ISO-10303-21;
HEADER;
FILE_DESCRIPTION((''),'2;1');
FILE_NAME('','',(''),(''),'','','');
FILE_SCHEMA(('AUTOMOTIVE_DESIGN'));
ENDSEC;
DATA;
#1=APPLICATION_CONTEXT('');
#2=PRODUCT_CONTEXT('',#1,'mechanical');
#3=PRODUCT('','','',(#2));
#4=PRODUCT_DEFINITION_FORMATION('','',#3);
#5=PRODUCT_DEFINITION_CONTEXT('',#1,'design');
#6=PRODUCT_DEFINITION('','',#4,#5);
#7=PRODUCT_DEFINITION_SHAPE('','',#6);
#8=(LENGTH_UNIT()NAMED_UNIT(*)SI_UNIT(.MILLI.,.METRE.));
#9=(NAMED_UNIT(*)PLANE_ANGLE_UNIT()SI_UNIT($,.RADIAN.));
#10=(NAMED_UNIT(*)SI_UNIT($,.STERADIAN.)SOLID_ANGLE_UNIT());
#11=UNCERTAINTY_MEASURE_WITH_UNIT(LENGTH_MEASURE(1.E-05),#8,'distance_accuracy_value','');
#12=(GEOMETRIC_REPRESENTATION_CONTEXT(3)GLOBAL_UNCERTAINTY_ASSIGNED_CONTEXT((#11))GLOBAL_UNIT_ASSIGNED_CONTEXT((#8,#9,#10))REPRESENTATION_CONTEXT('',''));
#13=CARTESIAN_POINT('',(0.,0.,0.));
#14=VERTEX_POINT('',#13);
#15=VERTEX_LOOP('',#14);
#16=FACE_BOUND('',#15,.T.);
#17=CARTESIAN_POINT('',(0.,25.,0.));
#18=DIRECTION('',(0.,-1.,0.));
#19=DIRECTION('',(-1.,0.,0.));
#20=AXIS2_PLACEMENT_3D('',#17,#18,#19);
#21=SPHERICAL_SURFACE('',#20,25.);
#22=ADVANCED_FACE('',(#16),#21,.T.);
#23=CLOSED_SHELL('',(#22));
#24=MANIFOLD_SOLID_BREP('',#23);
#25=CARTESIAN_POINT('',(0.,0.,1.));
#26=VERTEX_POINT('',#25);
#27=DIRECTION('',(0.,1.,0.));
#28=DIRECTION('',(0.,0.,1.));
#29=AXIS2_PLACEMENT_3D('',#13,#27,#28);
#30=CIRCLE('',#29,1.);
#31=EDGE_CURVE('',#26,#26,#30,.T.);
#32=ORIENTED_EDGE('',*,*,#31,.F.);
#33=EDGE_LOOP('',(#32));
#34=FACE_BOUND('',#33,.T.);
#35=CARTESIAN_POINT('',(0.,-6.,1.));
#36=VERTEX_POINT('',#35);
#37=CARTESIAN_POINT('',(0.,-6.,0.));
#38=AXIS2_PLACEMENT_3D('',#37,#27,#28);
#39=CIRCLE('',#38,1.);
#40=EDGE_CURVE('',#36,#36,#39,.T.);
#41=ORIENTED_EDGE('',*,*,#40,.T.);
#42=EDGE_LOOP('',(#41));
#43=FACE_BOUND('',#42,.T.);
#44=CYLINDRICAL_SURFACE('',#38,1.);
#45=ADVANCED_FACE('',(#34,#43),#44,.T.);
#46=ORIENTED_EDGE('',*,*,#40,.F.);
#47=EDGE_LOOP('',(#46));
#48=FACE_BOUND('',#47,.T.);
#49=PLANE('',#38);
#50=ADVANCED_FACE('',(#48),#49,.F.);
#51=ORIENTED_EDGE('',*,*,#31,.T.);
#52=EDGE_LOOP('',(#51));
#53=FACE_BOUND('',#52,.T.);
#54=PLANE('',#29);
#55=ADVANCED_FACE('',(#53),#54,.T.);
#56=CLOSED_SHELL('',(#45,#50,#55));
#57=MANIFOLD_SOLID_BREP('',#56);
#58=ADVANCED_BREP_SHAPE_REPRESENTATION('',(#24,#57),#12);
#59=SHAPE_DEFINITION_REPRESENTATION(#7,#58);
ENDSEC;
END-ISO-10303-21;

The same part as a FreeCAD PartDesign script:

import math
import FreeCAD as App
import Part
import Sketcher
Q = App.Units.Quantity

doc = App.newDocument("Part")
body = doc.addObject("PartDesign::Body", "Body")

# Sketch on XY plane
sketch1 = body.newObject("Sketcher::SketchObject", "Sketch")
sketch1.AttachmentSupport = (doc.getObject("XY_Plane"), [""])
sketch1.MapMode = "FlatFace"
sketch1.addGeometry([
    Part.LineSegment(App.Vector(0, 50, 0), App.Vector(0, 0, 0)),
    Part.ArcOfCircle(Part.Circle(App.Vector(0, 25, 0), App.Vector(0, 0, 1), 25), math.radians(-90), math.radians(90)),
], False)
sketch1.addConstraint([
    Sketcher.Constraint("Coincident", 0, 1, 1, 2),
    Sketcher.Constraint("Coincident", 1, 1, 0, 2),
    Sketcher.Constraint("Vertical", 0),
    Sketcher.Constraint("Coincident", 1, 1, -1, 1),
    Sketcher.Constraint("PointOnObject", 1, 3, -2),
    Sketcher.Constraint("Radius", 1, Q("25 mm")),
])
revolution = body.newObject("PartDesign::Revolution", "Revolution")
revolution.Profile = sketch1
revolution.ReferenceAxis = (sketch1, ["V_Axis"])
revolution.Angle = 360
body2 = doc.addObject("PartDesign::Body", "Body001")

# Sketch on XZ plane
sketch2 = body2.newObject("Sketcher::SketchObject", "Sketch001")
sketch2.AttachmentSupport = (doc.getObject("XZ_Plane001"), [""])
sketch2.MapMode = "FlatFace"
sketch2.addGeometry(Part.Circle(App.Vector(0, 0, 0), App.Vector(0, 0, 1), 1), False)
sketch2.addConstraint([
    Sketcher.Constraint("Coincident", 0, 3, -1, 1),
    Sketcher.Constraint("Diameter", 0, Q("2 mm")),
])
pad1 = body2.newObject("PartDesign::Pad", "Pad")
pad1.Profile = sketch2
pad1.Length = 6

doc.recompute()
